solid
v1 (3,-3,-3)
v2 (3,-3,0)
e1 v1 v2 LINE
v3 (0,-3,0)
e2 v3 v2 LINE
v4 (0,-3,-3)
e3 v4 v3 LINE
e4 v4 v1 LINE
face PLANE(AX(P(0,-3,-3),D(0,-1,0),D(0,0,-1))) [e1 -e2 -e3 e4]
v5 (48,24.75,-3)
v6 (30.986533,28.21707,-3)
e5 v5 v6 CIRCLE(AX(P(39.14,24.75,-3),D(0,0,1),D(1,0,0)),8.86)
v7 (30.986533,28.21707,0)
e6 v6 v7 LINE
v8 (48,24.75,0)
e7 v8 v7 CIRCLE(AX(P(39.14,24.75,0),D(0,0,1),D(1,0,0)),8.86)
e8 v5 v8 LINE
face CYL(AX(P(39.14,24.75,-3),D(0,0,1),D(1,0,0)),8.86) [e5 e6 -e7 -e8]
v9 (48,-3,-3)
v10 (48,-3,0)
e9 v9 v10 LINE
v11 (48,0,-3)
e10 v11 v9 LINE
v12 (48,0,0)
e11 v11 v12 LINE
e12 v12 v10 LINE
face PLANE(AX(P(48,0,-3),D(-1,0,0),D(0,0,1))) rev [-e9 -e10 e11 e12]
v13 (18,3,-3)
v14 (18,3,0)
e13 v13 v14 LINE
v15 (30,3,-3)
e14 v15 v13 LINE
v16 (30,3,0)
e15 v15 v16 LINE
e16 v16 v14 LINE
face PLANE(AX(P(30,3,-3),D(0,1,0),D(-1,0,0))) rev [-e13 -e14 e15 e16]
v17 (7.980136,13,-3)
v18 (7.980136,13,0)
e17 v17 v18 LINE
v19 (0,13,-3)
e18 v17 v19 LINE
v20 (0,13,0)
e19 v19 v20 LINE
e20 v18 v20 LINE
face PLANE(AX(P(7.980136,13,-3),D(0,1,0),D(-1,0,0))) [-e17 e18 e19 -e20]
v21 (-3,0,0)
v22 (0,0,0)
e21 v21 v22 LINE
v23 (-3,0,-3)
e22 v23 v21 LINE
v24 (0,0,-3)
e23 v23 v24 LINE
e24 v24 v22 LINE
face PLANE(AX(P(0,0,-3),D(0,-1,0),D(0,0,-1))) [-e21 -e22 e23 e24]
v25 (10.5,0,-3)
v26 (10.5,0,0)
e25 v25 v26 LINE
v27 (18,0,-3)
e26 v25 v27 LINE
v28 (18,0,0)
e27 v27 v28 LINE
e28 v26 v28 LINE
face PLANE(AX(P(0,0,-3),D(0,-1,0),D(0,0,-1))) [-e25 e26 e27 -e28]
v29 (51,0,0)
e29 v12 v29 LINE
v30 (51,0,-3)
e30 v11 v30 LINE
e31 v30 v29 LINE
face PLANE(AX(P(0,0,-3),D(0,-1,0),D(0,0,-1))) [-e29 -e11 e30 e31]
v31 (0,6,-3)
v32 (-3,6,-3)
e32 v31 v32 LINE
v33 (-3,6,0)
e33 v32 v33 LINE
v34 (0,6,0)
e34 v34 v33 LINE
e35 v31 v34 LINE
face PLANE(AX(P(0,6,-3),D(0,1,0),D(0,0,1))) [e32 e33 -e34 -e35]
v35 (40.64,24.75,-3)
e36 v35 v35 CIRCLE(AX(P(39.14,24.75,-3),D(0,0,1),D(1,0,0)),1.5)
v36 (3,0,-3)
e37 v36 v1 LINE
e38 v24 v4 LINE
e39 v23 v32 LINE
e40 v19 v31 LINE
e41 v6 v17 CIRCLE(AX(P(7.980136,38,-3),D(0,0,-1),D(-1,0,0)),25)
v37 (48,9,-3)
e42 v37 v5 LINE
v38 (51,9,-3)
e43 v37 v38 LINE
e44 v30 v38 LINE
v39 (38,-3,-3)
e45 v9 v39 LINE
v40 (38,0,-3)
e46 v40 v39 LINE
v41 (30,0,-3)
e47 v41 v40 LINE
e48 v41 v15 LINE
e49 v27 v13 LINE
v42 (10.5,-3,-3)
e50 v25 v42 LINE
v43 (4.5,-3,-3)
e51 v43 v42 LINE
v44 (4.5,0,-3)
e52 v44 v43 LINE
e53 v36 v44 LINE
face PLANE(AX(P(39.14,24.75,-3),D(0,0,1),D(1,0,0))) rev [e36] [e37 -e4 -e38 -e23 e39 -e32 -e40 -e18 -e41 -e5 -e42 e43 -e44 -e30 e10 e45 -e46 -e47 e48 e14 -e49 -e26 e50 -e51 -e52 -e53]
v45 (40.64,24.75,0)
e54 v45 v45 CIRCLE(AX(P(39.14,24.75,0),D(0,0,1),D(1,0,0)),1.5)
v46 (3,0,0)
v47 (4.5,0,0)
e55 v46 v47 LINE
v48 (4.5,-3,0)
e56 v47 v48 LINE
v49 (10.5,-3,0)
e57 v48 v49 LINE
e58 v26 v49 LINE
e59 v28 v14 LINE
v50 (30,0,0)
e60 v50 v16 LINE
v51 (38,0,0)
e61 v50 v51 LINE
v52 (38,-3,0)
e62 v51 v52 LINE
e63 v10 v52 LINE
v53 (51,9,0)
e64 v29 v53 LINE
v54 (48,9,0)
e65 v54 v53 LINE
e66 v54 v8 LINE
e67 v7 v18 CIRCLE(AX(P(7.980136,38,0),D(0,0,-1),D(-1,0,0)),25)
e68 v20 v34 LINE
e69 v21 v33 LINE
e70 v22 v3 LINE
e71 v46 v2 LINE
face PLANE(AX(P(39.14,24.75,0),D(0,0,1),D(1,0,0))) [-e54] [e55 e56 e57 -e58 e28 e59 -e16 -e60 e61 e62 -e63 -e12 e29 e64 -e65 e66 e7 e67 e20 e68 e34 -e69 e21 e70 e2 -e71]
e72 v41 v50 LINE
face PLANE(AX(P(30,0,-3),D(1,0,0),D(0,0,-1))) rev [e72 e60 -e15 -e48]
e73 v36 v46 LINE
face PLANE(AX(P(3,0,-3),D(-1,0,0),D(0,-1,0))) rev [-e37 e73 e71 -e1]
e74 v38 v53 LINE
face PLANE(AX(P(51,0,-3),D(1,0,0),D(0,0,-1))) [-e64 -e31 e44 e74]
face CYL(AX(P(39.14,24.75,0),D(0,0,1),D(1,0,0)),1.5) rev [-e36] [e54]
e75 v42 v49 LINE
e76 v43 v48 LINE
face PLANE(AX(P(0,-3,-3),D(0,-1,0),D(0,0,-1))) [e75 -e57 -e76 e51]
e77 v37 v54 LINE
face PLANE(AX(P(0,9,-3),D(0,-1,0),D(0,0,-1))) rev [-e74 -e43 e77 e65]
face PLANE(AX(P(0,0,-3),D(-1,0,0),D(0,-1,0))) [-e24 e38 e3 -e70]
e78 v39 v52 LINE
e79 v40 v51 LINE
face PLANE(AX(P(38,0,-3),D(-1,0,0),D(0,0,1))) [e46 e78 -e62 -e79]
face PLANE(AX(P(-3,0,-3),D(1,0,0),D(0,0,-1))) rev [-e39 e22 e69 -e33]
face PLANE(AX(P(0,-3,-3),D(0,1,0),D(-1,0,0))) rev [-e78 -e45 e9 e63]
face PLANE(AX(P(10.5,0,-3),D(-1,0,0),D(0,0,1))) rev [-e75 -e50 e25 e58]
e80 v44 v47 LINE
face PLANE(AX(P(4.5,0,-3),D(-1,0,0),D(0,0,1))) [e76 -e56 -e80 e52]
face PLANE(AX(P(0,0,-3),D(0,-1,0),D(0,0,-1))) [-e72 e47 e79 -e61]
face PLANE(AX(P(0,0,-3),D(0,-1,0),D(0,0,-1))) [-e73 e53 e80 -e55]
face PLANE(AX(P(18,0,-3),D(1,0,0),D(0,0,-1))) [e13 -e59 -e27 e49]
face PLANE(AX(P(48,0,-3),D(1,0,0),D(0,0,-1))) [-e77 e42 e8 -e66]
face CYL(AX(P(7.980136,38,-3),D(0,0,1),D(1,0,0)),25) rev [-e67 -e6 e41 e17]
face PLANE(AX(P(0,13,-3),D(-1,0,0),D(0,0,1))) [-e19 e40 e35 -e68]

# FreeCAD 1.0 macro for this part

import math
import FreeCAD as App
import Part
import Sketcher
from FreeCAD import Vector

doc = App.newDocument("Part")
body = doc.addObject("PartDesign::Body", "Body")

sketch1 = body.newObject("Sketcher::SketchObject", "Sketch")
sketch1.AttachmentSupport = (doc.getObject("XY_Plane"), [""])
sketch1.MapMode = "FlatFace"
sketch1.addGeometry(Part.LineSegment(Vector(0, 0, 0), Vector(48, 0, 0)), False)
sketch1.addGeometry(Part.LineSegment(Vector(48, 0, 0), Vector(48, 25, 0)), False)
sketch1.addGeometry(Part.ArcOfCircle(Part.Circle(Vector(39, 25, 0), Vector(0, 0, 1), 9), math.radians(0), math.radians(157)), False)
sketch1.addGeometry(Part.ArcOfCircle(Part.Circle(Vector(8, 38, 0), Vector(0, 0, 1), 25), math.radians(-90), math.radians(-23)), False)
sketch1.addGeometry(Part.LineSegment(Vector(8, 13, 0), Vector(0, 13, 0)), False)
sketch1.addGeometry(Part.LineSegment(Vector(0, 13, 0), Vector(0, 0, 0)), False)
sketch1.addConstraint(Sketcher.Constraint("Coincident", 0, 2, 1, 1))
sketch1.addConstraint(Sketcher.Constraint("Tangent", 1, 2, 2, 1))
sketch1.addConstraint(Sketcher.Constraint("Tangent", 2, 2, 3, 2))
sketch1.addConstraint(Sketcher.Constraint("Tangent", 3, 1, 4, 1))
sketch1.addConstraint(Sketcher.Constraint("Coincident", 4, 2, 5, 1))
sketch1.addConstraint(Sketcher.Constraint("Coincident", 5, 2, 0, 1))
sketch1.addConstraint(Sketcher.Constraint("Horizontal", 0))
sketch1.addConstraint(Sketcher.Constraint("Vertical", 1))
sketch1.addConstraint(Sketcher.Constraint("Horizontal", 4))
sketch1.addConstraint(Sketcher.Constraint("Vertical", 5))
sketch1.addConstraint(Sketcher.Constraint("Coincident", 5, 2, -1, 1))
sketch1.addConstraint(Sketcher.Constraint("Radius", 3, 25.0))
sketch1.addConstraint(Sketcher.Constraint("DistanceX", 0, 1, 0, 2, 48.0))
sketch1.addConstraint(Sketcher.Constraint("DistanceY", 5, 2, 5, 1, 13.0))
sketch1.addConstraint(Sketcher.Constraint("Radius", 2, 8.86))
sketch1.addConstraint(Sketcher.Constraint("DistanceY", 1, 1, 1, 2, 24.75))
pad1 = body.newObject("PartDesign::Pad", "Pad")
pad1.Profile = sketch1
pad1.Length = 3
pad1.Reversed = True

sketch2 = body.newObject("Sketcher::SketchObject", "Sketch001")
sketch2.AttachmentSupport = (doc.getObject("XY_Plane"), [""])
sketch2.MapMode = "FlatFace"
sketch2.addGeometry(Part.LineSegment(Vector(18, 3, 0), Vector(18, 0, 0)), False)
sketch2.addGeometry(Part.LineSegment(Vector(18, 0, 0), Vector(30, 0, 0)), False)
sketch2.addGeometry(Part.LineSegment(Vector(30, 0, 0), Vector(30, 3, 0)), False)
sketch2.addGeometry(Part.LineSegment(Vector(30, 3, 0), Vector(18, 3, 0)), False)
sketch2.addConstraint(Sketcher.Constraint("Coincident", 0, 2, 1, 1))
sketch2.addConstraint(Sketcher.Constraint("Coincident", 1, 2, 2, 1))
sketch2.addConstraint(Sketcher.Constraint("Coincident", 2, 2, 3, 1))
sketch2.addConstraint(Sketcher.Constraint("Coincident", 3, 2, 0, 1))
sketch2.addConstraint(Sketcher.Constraint("Vertical", 0))
sketch2.addConstraint(Sketcher.Constraint("Horizontal", 1))
sketch2.addConstraint(Sketcher.Constraint("Vertical", 2))
sketch2.addConstraint(Sketcher.Constraint("Horizontal", 3))
sketch2.addConstraint(Sketcher.Constraint("PointOnObject", 0, 2, -1))
sketch2.addConstraint(Sketcher.Constraint("DistanceX", 1, 1, 1, 2, 12.0))
sketch2.addConstraint(Sketcher.Constraint("DistanceY", 0, 2, 0, 1, 3.0))
sketch2.addConstraint(Sketcher.Constraint("DistanceX", -1, 1, 0, 2, 18.0))
pocket1 = body.newObject("PartDesign::Pocket", "Pocket")
pocket1.Profile = sketch2
pocket1.Type = "ThroughAll"

sketch3 = body.newObject("Sketcher::SketchObject", "Sketch002")
sketch3.AttachmentSupport = (doc.getObject("XY_Plane"), [""])
sketch3.MapMode = "FlatFace"
sketch3.addGeometry(Part.Circle(Vector(39.1, 24.8, 0), Vector(0, 0, 1), 1.5), False)
sketch3.addConstraint(Sketcher.Constraint("Diameter", 0, 3.0))
sketch3.addConstraint(Sketcher.Constraint("DistanceX", -1, 1, 0, 3, 39.14))
sketch3.addConstraint(Sketcher.Constraint("DistanceY", -1, 1, 0, 3, 24.75))
doc.recompute()
hole = body.newObject("PartDesign::Hole", "Hole")
hole.Profile = sketch3
hole.ThreadType = "None"
hole.Diameter = 3
hole.DepthType = "ThroughAll"

sketch4 = body.newObject("Sketcher::SketchObject", "Sketch003")
sketch4.AttachmentSupport = (doc.getObject("XY_Plane"), [""])
sketch4.MapMode = "FlatFace"
sketch4.addGeometry(Part.LineSegment(Vector(-3, 6, 0), Vector(-3, 0, 0)), False)
sketch4.addGeometry(Part.LineSegment(Vector(-3, 0, 0), Vector(0, 0, 0)), False)
sketch4.addGeometry(Part.LineSegment(Vector(0, 0, 0), Vector(0, 6, 0)), False)
sketch4.addGeometry(Part.LineSegment(Vector(0, 6, 0), Vector(-3, 6, 0)), False)
sketch4.addGeometry(Part.LineSegment(Vector(0, 0, 0), Vector(0, -3, 0)), False)
sketch4.addGeometry(Part.LineSegment(Vector(0, -3, 0), Vector(3, -3, 0)), False)
sketch4.addGeometry(Part.LineSegment(Vector(3, -3, 0), Vector(3, 0, 0)), False)
sketch4.addGeometry(Part.LineSegment(Vector(3, 0, 0), Vector(0, 0, 0)), False)
sketch4.addGeometry(Part.LineSegment(Vector(4.5, 0, 0), Vector(4.5, -3, 0)), False)
sketch4.addGeometry(Part.LineSegment(Vector(4.5, -3, 0), Vector(10.5, -3, 0)), False)
sketch4.addGeometry(Part.LineSegment(Vector(10.5, -3, 0), Vector(10.5, 0, 0)), False)
sketch4.addGeometry(Part.LineSegment(Vector(10.5, 0, 0), Vector(4.5, 0, 0)), False)
sketch4.addGeometry(Part.LineSegment(Vector(48, 9, 0), Vector(48, 0, 0)), False)
sketch4.addGeometry(Part.LineSegment(Vector(48, 0, 0), Vector(51, 0, 0)), False)
sketch4.addGeometry(Part.LineSegment(Vector(51, 0, 0), Vector(51, 9, 0)), False)
sketch4.addGeometry(Part.LineSegment(Vector(51, 9, 0), Vector(48, 9, 0)), False)
sketch4.addGeometry(Part.LineSegment(Vector(38, 0, 0), Vector(38, -3, 0)), False)
sketch4.addGeometry(Part.LineSegment(Vector(38, -3, 0), Vector(48, -3, 0)), False)
sketch4.addGeometry(Part.LineSegment(Vector(48, -3, 0), Vector(48, 0, 0)), False)
sketch4.addGeometry(Part.LineSegment(Vector(48, 0, 0), Vector(38, 0, 0)), False)
sketch4.addConstraint(Sketcher.Constraint("Coincident", 0, 2, 1, 1))
sketch4.addConstraint(Sketcher.Constraint("Coincident", 1, 2, 2, 1))
sketch4.addConstraint(Sketcher.Constraint("Coincident", 2, 2, 3, 1))
sketch4.addConstraint(Sketcher.Constraint("Coincident", 3, 2, 0, 1))
sketch4.addConstraint(Sketcher.Constraint("Coincident", 4, 2, 5, 1))
sketch4.addConstraint(Sketcher.Constraint("Coincident", 5, 2, 6, 1))
sketch4.addConstraint(Sketcher.Constraint("Coincident", 6, 2, 7, 1))
sketch4.addConstraint(Sketcher.Constraint("Coincident", 7, 2, 4, 1))
sketch4.addConstraint(Sketcher.Constraint("Coincident", 8, 2, 9, 1))
sketch4.addConstraint(Sketcher.Constraint("Coincident", 9, 2, 10, 1))
sketch4.addConstraint(Sketcher.Constraint("Coincident", 10, 2, 11, 1))
sketch4.addConstraint(Sketcher.Constraint("Coincident", 11, 2, 8, 1))
sketch4.addConstraint(Sketcher.Constraint("Coincident", 12, 2, 13, 1))
sketch4.addConstraint(Sketcher.Constraint("Coincident", 13, 2, 14, 1))
sketch4.addConstraint(Sketcher.Constraint("Coincident", 14, 2, 15, 1))
sketch4.addConstraint(Sketcher.Constraint("Coincident", 15, 2, 12, 1))
sketch4.addConstraint(Sketcher.Constraint("Coincident", 16, 2, 17, 1))
sketch4.addConstraint(Sketcher.Constraint("Coincident", 17, 2, 18, 1))
sketch4.addConstraint(Sketcher.Constraint("Coincident", 18, 2, 19, 1))
sketch4.addConstraint(Sketcher.Constraint("Coincident", 19, 2, 16, 1))
sketch4.addConstraint(Sketcher.Constraint("Vertical", 0))
sketch4.addConstraint(Sketcher.Constraint("Horizontal", 1))
sketch4.addConstraint(Sketcher.Constraint("Vertical", 2))
sketch4.addConstraint(Sketcher.Constraint("Horizontal", 3))
sketch4.addConstraint(Sketcher.Constraint("Vertical", 4))
sketch4.addConstraint(Sketcher.Constraint("Horizontal", 5))
sketch4.addConstraint(Sketcher.Constraint("Vertical", 6))
sketch4.addConstraint(Sketcher.Constraint("Horizontal", 7))
sketch4.addConstraint(Sketcher.Constraint("Vertical", 8))
sketch4.addConstraint(Sketcher.Constraint("Horizontal", 9))
sketch4.addConstraint(Sketcher.Constraint("Vertical", 10))
sketch4.addConstraint(Sketcher.Constraint("Horizontal", 11))
sketch4.addConstraint(Sketcher.Constraint("Vertical", 12))
sketch4.addConstraint(Sketcher.Constraint("Horizontal", 13))
sketch4.addConstraint(Sketcher.Constraint("Vertical", 14))
sketch4.addConstraint(Sketcher.Constraint("Horizontal", 15))
sketch4.addConstraint(Sketcher.Constraint("Vertical", 16))
sketch4.addConstraint(Sketcher.Constraint("Horizontal", 17))
sketch4.addConstraint(Sketcher.Constraint("Vertical", 18))
sketch4.addConstraint(Sketcher.Constraint("Horizontal", 19))
sketch4.addConstraint(Sketcher.Constraint("Coincident", 1, 2, -1, 1))
sketch4.addConstraint(Sketcher.Constraint("Coincident", 7, 2, -1, 1))
sketch4.addConstraint(Sketcher.Constraint("Coincident", 18, 2, 12, 2))
sketch4.addConstraint(Sketcher.Constraint("PointOnObject", 10, 2, -1))
sketch4.addConstraint(Sketcher.Constraint("PointOnObject", 12, 2, -1))
sketch4.addConstraint(Sketcher.Constraint("Horizontal", 5, 2, 8, 2))
sketch4.addConstraint(Sketcher.Constraint("Horizontal", 9, 2, 16, 2))
sketch4.addConstraint(Sketcher.Constraint("Equal", 3, 5))
sketch4.addConstraint(Sketcher.Constraint("Equal", 7, 13))
sketch4.addConstraint(Sketcher.Constraint("Equal", 11, 0))
sketch4.addConstraint(Sketcher.Constraint("Equal", 15, 4))
sketch4.addConstraint(Sketcher.Constraint("DistanceX", 1, 1, 1, 2, 3.0))
sketch4.addConstraint(Sketcher.Constraint("DistanceX", 9, 1, 9, 2, 6.0))
sketch4.addConstraint(Sketcher.Constraint("DistanceX", 17, 1, 17, 2, 10.0))
sketch4.addConstraint(Sketcher.Constraint("DistanceY", 12, 2, 12, 1, 9.0))
sketch4.addConstraint(Sketcher.Constraint("DistanceX", -1, 1, 12, 2, 48.0))
sketch4.addConstraint(Sketcher.Constraint("DistanceX", -1, 1, 8, 2, 4.5))
pad2 = body.newObject("PartDesign::Pad", "Pad001")
pad2.Profile = sketch4
pad2.Length = 3
pad2.Reversed = True

doc.recompute()
